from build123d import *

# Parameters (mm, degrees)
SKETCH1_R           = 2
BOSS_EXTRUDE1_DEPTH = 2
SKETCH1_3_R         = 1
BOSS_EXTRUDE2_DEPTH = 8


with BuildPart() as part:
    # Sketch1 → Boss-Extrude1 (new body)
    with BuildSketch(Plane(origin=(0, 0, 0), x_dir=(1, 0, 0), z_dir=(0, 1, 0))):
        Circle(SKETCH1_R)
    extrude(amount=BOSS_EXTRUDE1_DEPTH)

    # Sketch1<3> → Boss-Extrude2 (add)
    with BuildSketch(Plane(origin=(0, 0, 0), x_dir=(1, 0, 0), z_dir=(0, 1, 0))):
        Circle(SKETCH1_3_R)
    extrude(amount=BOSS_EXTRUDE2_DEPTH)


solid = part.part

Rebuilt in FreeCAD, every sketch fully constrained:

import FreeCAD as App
import Part
import Sketcher
from FreeCAD import Vector

doc = App.newDocument("Part")
body = doc.addObject("PartDesign::Body", "Body")

# Sketch on XZ plane
sketch1 = doc.addObject("Sketcher::SketchObject", "Sketch")
body.addObject(sketch1)
sketch1.AttachmentSupport = (doc.XZ_Plane, [""])
sketch1.MapMode = "FlatFace"
sketch1.addGeometry(Part.Circle(Vector(0, 0, 0), Vector(0, 0, 1), 2), False)
sketch1.addConstraint([
    Sketcher.Constraint("Coincident", 0, 3, -1, 1),
    Sketcher.Constraint("Diameter", 0, 4.0),
])
pad1 = doc.addObject("PartDesign::Pad", "Pad")
body.addObject(pad1)
pad1.Profile = sketch1
pad1.Length = 2
pad1.Reversed = True

# Sketch on XZ plane
sketch2 = doc.addObject("Sketcher::SketchObject", "Sketch001")
body.addObject(sketch2)
sketch2.AttachmentSupport = (doc.XZ_Plane, [""])
sketch2.MapMode = "FlatFace"
sketch2.addGeometry(Part.Circle(Vector(0, 0, 0), Vector(0, 0, 1), 1), False)
sketch2.addConstraint([
    Sketcher.Constraint("Coincident", 0, 3, -1, 1),
    Sketcher.Constraint("Diameter", 0, 2.0),
])
pad2 = doc.addObject("PartDesign::Pad", "Pad001")
body.addObject(pad2)
pad2.Profile = sketch2
pad2.Length = 8
pad2.Reversed = True

doc.recompute()
